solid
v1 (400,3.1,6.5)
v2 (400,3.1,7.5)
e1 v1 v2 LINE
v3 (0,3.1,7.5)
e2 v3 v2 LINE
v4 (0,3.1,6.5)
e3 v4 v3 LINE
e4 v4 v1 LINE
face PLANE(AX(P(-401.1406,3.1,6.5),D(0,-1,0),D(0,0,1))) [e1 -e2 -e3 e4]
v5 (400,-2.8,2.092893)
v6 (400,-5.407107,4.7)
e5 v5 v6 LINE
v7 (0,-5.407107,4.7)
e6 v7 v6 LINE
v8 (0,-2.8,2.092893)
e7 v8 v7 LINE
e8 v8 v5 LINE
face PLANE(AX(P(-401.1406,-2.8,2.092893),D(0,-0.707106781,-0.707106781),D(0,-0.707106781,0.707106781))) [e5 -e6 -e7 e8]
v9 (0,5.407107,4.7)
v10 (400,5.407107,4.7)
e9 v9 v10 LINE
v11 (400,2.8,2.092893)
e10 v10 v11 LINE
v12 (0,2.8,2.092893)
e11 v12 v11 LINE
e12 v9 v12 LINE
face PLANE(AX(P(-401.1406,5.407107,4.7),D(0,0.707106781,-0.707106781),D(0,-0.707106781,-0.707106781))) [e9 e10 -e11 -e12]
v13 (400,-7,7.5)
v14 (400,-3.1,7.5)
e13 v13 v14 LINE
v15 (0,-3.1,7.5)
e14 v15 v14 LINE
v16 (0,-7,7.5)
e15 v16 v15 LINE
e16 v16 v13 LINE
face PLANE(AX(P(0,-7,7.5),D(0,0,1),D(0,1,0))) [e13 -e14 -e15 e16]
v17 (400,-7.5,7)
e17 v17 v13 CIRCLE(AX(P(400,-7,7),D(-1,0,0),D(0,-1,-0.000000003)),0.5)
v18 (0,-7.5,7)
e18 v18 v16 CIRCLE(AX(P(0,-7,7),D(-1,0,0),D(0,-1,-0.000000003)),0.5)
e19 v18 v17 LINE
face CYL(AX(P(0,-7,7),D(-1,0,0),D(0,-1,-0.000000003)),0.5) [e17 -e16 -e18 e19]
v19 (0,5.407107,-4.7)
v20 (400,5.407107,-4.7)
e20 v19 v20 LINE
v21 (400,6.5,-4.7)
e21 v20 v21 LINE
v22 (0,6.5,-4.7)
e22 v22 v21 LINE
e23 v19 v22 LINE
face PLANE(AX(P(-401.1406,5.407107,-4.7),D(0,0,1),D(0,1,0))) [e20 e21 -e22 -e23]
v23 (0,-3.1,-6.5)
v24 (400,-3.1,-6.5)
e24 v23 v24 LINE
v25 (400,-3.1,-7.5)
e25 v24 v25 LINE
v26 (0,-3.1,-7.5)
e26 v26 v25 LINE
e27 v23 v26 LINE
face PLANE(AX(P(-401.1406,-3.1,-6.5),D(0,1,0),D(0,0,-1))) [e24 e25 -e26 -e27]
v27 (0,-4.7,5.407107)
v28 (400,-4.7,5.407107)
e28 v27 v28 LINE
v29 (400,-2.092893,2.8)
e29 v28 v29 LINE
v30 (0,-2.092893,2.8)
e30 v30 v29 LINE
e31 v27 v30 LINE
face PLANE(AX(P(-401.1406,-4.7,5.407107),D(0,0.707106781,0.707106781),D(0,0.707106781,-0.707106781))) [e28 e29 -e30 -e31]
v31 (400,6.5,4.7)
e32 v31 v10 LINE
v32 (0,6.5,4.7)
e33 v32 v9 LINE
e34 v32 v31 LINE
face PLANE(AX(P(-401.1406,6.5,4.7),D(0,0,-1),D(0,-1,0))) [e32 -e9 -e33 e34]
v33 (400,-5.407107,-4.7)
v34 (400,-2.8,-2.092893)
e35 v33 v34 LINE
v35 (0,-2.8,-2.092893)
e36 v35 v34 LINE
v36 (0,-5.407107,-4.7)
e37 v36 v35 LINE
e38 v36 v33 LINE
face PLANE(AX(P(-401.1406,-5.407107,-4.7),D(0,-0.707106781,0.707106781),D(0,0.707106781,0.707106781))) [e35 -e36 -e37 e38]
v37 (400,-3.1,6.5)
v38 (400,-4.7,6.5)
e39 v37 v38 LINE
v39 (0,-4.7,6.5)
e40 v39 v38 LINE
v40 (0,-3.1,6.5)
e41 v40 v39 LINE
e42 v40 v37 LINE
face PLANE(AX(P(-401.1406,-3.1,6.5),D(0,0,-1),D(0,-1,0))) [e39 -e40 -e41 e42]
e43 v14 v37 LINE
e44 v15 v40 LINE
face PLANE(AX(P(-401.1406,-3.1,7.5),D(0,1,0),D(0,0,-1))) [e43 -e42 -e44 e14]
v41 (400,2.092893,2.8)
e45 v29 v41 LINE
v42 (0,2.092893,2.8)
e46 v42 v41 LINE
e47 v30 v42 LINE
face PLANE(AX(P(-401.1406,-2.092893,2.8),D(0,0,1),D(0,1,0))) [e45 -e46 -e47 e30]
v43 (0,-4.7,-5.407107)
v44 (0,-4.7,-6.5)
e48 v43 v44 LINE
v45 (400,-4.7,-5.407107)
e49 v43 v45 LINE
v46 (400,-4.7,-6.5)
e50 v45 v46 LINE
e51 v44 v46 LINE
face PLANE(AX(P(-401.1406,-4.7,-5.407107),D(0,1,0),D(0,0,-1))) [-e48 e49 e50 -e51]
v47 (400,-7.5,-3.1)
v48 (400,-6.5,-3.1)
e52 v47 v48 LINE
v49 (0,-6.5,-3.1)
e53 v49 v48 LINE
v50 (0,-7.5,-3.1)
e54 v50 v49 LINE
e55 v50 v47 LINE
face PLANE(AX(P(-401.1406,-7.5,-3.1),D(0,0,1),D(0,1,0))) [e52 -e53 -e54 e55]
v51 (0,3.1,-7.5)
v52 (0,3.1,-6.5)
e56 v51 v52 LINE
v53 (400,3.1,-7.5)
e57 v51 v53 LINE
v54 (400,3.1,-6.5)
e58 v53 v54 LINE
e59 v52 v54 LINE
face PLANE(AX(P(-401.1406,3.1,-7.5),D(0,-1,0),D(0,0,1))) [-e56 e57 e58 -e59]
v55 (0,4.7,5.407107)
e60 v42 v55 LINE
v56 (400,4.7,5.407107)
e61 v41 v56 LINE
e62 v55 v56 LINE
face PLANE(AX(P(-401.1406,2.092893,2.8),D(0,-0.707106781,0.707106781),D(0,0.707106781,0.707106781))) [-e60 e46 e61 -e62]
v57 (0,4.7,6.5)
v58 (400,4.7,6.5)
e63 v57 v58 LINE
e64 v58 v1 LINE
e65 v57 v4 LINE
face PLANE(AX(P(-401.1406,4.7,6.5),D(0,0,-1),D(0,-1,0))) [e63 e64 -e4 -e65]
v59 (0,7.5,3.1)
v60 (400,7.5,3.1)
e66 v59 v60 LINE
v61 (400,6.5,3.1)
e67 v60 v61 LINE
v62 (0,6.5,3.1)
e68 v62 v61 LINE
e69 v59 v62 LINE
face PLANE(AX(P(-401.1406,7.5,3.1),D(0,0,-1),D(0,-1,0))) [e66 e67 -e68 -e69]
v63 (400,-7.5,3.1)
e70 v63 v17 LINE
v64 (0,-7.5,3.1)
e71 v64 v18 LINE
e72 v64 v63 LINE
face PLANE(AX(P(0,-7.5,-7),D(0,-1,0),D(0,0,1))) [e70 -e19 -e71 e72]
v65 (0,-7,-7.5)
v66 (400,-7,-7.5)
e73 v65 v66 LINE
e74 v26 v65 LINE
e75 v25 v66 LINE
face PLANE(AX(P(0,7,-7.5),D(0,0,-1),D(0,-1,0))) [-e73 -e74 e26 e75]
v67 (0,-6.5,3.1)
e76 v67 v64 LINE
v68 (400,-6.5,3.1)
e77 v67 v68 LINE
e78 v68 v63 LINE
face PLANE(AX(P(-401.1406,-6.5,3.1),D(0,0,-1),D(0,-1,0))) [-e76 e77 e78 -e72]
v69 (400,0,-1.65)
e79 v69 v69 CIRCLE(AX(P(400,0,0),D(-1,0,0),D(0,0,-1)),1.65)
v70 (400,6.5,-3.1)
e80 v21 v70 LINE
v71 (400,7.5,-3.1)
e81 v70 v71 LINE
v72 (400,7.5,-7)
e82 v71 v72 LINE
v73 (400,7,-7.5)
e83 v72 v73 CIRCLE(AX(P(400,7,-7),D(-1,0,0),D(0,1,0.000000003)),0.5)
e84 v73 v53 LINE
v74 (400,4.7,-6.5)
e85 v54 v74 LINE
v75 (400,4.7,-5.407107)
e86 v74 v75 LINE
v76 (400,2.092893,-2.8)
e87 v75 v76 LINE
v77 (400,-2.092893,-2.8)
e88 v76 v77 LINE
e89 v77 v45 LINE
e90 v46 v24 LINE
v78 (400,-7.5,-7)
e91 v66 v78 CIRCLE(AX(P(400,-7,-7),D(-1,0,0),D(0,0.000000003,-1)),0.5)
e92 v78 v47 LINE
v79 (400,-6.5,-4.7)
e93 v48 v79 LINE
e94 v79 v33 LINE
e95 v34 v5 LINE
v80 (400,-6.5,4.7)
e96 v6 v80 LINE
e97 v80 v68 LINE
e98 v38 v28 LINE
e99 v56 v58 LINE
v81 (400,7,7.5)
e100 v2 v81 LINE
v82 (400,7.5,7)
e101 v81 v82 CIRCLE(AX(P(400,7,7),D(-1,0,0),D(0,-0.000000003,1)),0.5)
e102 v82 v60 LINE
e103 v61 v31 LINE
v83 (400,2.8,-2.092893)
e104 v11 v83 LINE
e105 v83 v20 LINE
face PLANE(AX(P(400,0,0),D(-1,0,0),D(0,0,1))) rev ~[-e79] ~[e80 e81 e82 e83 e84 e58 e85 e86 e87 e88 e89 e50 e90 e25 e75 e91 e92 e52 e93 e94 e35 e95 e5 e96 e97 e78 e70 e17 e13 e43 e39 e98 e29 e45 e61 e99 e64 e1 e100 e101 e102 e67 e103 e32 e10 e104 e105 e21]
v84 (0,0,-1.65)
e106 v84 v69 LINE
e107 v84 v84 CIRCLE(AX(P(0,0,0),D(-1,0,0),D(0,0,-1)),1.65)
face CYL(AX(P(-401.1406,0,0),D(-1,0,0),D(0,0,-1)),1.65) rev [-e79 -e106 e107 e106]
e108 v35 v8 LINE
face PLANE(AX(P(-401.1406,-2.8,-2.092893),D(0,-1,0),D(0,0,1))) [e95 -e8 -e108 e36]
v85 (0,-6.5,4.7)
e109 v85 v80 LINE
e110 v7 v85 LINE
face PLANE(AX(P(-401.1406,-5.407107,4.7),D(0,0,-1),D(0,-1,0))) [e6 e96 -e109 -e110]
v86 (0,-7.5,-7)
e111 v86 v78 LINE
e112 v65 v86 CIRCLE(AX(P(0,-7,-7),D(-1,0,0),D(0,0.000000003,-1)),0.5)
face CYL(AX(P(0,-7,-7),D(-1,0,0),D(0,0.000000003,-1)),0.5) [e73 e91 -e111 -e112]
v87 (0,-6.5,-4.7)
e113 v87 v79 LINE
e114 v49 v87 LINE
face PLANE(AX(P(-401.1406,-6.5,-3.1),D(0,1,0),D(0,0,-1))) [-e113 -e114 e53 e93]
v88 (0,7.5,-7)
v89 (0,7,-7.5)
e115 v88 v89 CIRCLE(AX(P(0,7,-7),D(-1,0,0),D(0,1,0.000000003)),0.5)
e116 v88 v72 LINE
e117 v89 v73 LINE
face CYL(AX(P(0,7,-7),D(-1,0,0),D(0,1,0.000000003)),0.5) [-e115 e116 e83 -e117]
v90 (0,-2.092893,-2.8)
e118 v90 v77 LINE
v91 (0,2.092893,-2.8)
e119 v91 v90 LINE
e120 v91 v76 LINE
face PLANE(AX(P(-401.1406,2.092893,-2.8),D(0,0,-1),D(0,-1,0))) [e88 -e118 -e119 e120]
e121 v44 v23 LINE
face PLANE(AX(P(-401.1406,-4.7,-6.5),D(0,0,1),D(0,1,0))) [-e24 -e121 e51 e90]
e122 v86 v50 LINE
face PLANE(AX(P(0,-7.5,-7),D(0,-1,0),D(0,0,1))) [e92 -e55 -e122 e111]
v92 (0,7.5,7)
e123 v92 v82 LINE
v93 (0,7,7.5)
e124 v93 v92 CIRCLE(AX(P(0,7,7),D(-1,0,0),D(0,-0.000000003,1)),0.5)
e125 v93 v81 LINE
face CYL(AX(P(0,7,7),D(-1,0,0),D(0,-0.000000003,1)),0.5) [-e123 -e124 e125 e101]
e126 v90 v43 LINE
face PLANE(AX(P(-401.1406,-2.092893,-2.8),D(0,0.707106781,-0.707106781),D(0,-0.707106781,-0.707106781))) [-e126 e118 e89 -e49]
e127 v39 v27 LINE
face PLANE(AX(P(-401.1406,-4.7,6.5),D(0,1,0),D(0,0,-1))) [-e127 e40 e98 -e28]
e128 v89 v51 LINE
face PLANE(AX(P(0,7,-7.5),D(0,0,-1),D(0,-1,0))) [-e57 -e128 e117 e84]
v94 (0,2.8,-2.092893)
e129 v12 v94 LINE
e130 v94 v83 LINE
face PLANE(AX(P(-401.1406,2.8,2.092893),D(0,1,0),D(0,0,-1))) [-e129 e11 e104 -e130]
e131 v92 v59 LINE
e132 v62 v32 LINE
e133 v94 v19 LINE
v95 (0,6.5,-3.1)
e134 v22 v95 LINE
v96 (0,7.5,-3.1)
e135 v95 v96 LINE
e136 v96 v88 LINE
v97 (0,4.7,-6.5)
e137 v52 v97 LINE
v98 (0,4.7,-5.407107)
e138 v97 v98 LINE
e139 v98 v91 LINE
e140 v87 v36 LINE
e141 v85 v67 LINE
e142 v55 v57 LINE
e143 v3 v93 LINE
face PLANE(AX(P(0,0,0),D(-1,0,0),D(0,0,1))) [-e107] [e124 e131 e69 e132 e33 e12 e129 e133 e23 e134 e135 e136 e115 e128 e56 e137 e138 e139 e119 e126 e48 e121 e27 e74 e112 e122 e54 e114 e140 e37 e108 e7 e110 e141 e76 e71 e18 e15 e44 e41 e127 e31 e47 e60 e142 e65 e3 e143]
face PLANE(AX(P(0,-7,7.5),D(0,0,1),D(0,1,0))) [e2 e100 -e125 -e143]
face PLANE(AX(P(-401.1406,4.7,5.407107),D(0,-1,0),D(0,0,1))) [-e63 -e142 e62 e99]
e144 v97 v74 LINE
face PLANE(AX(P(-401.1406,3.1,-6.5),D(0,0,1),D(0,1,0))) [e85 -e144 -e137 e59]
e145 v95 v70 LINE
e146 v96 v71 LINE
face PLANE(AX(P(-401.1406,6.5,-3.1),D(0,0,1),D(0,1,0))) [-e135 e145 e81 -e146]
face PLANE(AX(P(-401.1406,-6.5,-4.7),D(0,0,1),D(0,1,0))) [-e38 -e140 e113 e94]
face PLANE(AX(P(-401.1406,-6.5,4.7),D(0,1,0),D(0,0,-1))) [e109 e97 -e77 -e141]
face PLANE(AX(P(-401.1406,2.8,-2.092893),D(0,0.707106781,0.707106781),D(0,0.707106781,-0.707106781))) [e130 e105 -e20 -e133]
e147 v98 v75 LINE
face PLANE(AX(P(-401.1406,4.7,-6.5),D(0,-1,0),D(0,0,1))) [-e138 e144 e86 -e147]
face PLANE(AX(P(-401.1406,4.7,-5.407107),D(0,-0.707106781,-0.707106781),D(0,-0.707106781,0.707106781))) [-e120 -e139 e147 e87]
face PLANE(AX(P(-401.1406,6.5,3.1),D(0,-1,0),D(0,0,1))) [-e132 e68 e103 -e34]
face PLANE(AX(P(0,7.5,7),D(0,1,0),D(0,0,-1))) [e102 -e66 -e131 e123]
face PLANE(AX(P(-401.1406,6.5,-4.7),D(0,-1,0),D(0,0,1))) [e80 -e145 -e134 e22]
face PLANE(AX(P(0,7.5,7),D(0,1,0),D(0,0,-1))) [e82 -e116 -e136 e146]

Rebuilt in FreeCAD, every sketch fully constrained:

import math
import FreeCAD as App
import Part
import Sketcher
Q = App.Units.Quantity

doc = App.newDocument("Part")
params = doc.addObject("Spreadsheet::Sheet", "Params")
for row, (alias, value) in enumerate([
    ("sketch1_radius", "0.5 mm"),
    ("sketch1_width", "14 mm"),
    ("pad1_length", "400 mm"),
    ("sketch2_diameter", "3.3 mm"),
    ("sketch2_width", "1 mm"),
    ("sketch2_width2", "6.2 mm"),
    ("sketch2_width3", "1.6 mm"),
], start=1):
    params.set(f"A{row}", alias)
    params.set(f"B{row}", "=" + value)
    params.setAlias(f"B{row}", alias)

body = doc.addObject("PartDesign::Body", "Body")

sketch1 = body.newObject("Sketcher::SketchObject", "Sketch")
sketch1.AttachmentSupport = (doc.getObject("YZ_Plane"), [""])
sketch1.MapMode = "FlatFace"
sketch1.addGeometry([
    Part.LineSegment(App.Vector(7.5, -7, 0), App.Vector(7.5, 7, 0)),
    Part.ArcOfCircle(Part.Circle(App.Vector(7, 7, 0), App.Vector(0, 0, 1), 0.5), math.radians(0), math.radians(90)),
    Part.LineSegment(App.Vector(7, 7.5, 0), App.Vector(-7, 7.5, 0)),
    Part.ArcOfCircle(Part.Circle(App.Vector(-7, 7, 0), App.Vector(0, 0, 1), 0.5), math.radians(90), math.radians(180)),
    Part.LineSegment(App.Vector(-7.5, 7, 0), App.Vector(-7.5, -7, 0)),
    Part.ArcOfCircle(Part.Circle(App.Vector(-7, -7, 0), App.Vector(0, 0, 1), 0.5), math.radians(180), math.radians(270)),
    Part.LineSegment(App.Vector(-7, -7.5, 0), App.Vector(7, -7.5, 0)),
    Part.ArcOfCircle(Part.Circle(App.Vector(7, -7, 0), App.Vector(0, 0, 1), 0.5), math.radians(-90), math.radians(0)),
], False)
sketch1.addConstraint([
    Sketcher.Constraint("Tangent", 0, 2, 1, 1),
    Sketcher.Constraint("Tangent", 1, 2, 2, 1),
    Sketcher.Constraint("Tangent", 2, 2, 3, 1),
    Sketcher.Constraint("Tangent", 3, 2, 4, 1),
    Sketcher.Constraint("Tangent", 4, 2, 5, 1),
    Sketcher.Constraint("Tangent", 5, 2, 6, 1),
    Sketcher.Constraint("Tangent", 6, 2, 7, 1),
    Sketcher.Constraint("Tangent", 7, 2, 0, 1),
    Sketcher.Constraint("Vertical", 0),
    Sketcher.Constraint("Horizontal", 2),
    Sketcher.Constraint("Vertical", 4),
    Sketcher.Constraint("Horizontal", 6),
    Sketcher.Constraint("Equal", 1, 3),
    Sketcher.Constraint("Equal", 3, 5),
    Sketcher.Constraint("Equal", 5, 7),
    Sketcher.Constraint("Symmetric", 1, 3, 5, 3, -1, 1),
    Sketcher.Constraint("Equal", 6, 0),
    Sketcher.Constraint("Radius", 1, Q("0.5 mm")),
    Sketcher.Constraint("DistanceX", 2, 2, 2, 1, Q("14 mm")),
])
sketch1.setExpression("Constraints[17]", "Params.sketch1_radius")
sketch1.setExpression("Constraints[18]", "Params.sketch1_width")
pad1 = body.newObject("PartDesign::Pad", "Pad")
pad1.Profile = sketch1
pad1.setExpression("Length", "Params.pad1_length")

sketch2 = body.newObject("Sketcher::SketchObject", "Sketch001")
sketch2.AttachmentSupport = (doc.getObject("YZ_Plane"), [""])
sketch2.MapMode = "FlatFace"
sketch2.addGeometry([
    Part.LineSegment(App.Vector(-6.5, 3.1, 0), App.Vector(-7.5, 3.1, 0)),
    Part.LineSegment(App.Vector(-7.5, 3.1, 0), App.Vector(-7.5, -3.1, 0)),
    Part.LineSegment(App.Vector(-7.5, -3.1, 0), App.Vector(-6.5, -3.1, 0)),
    Part.LineSegment(App.Vector(-6.5, -3.1, 0), App.Vector(-6.5, -4.7, 0)),
    Part.LineSegment(App.Vector(-6.5, -4.7, 0), App.Vector(-5.4, -4.7, 0)),
    Part.LineSegment(App.Vector(-5.4, -4.7, 0), App.Vector(-2.8, -2.1, 0)),
    Part.LineSegment(App.Vector(-2.8, -2.1, 0), App.Vector(-2.8, 2.1, 0)),
    Part.LineSegment(App.Vector(-2.8, 2.1, 0), App.Vector(-5.4, 4.7, 0)),
    Part.LineSegment(App.Vector(-5.4, 4.7, 0), App.Vector(-6.5, 4.7, 0)),
    Part.LineSegment(App.Vector(-6.5, 4.7, 0), App.Vector(-6.5, 3.1, 0)),
    Part.LineSegment(App.Vector(3.1, 6.5, 0), App.Vector(3.1, 7.5, 0)),
    Part.LineSegment(App.Vector(3.1, 7.5, 0), App.Vector(-3.1, 7.5, 0)),
    Part.LineSegment(App.Vector(-3.1, 7.5, 0), App.Vector(-3.1, 6.5, 0)),
    Part.LineSegment(App.Vector(-3.1, 6.5, 0), App.Vector(-4.7, 6.5, 0)),
    Part.LineSegment(App.Vector(-4.7, 6.5, 0), App.Vector(-4.7, 5.4, 0)),
    Part.LineSegment(App.Vector(-4.7, 5.4, 0), App.Vector(-2.1, 2.8, 0)),
    Part.LineSegment(App.Vector(-2.1, 2.8, 0), App.Vector(2.1, 2.8, 0)),
    Part.LineSegment(App.Vector(2.1, 2.8, 0), App.Vector(4.7, 5.4, 0)),
    Part.LineSegment(App.Vector(4.7, 5.4, 0), App.Vector(4.7, 6.5, 0)),
    Part.LineSegment(App.Vector(4.7, 6.5, 0), App.Vector(3.1, 6.5, 0)),
    Part.LineSegment(App.Vector(6.5, -4.7, 0), App.Vector(6.5, -3.1, 0)),
    Part.LineSegment(App.Vector(6.5, -3.1, 0), App.Vector(7.5, -3.1, 0)),
    Part.LineSegment(App.Vector(7.5, -3.1, 0), App.Vector(7.5, 3.1, 0)),
    Part.LineSegment(App.Vector(7.5, 3.1, 0), App.Vector(6.5, 3.1, 0)),
    Part.LineSegment(App.Vector(6.5, 3.1, 0), App.Vector(6.5, 4.7, 0)),
    Part.LineSegment(App.Vector(6.5, 4.7, 0), App.Vector(5.4, 4.7, 0)),
    Part.LineSegment(App.Vector(5.4, 4.7, 0), App.Vector(2.8, 2.1, 0)),
    Part.LineSegment(App.Vector(2.8, 2.1, 0), App.Vector(2.8, -2.1, 0)),
    Part.LineSegment(App.Vector(2.8, -2.1, 0), App.Vector(5.4, -4.7, 0)),
    Part.LineSegment(App.Vector(5.4, -4.7, 0), App.Vector(6.5, -4.7, 0)),
    Part.LineSegment(App.Vector(-3.1, -7.5, 0), App.Vector(3.1, -7.5, 0)),
    Part.LineSegment(App.Vector(3.1, -7.5, 0), App.Vector(3.1, -6.5, 0)),
    Part.LineSegment(App.Vector(3.1, -6.5, 0), App.Vector(4.7, -6.5, 0)),
    Part.LineSegment(App.Vector(4.7, -6.5, 0), App.Vector(4.7, -5.4, 0)),
    Part.LineSegment(App.Vector(4.7, -5.4, 0), App.Vector(2.1, -2.8, 0)),
    Part.LineSegment(App.Vector(2.1, -2.8, 0), App.Vector(-2.1, -2.8, 0)),
    Part.LineSegment(App.Vector(-2.1, -2.8, 0), App.Vector(-4.7, -5.4, 0)),
    Part.LineSegment(App.Vector(-4.7, -5.4, 0), App.Vector(-4.7, -6.5, 0)),
    Part.LineSegment(App.Vector(-4.7, -6.5, 0), App.Vector(-3.1, -6.5, 0)),
    Part.LineSegment(App.Vector(-3.1, -6.5, 0), App.Vector(-3.1, -7.5, 0)),
    Part.Circle(App.Vector(0, 0, 0), App.Vector(0, 0, 1), 1.6),
], False)
sketch2.addConstraint([
    Sketcher.Constraint("Coincident", 0, 2, 1, 1),
    Sketcher.Constraint("Coincident", 1, 2, 2, 1),
    Sketcher.Constraint("Coincident", 2, 2, 3, 1),
    Sketcher.Constraint("Coincident", 3, 2, 4, 1),
    Sketcher.Constraint("Coincident", 4, 2, 5, 1),
    Sketcher.Constraint("Coincident", 5, 2, 6, 1),
    Sketcher.Constraint("Coincident", 6, 2, 7, 1),
    Sketcher.Constraint("Coincident", 7, 2, 8, 1),
    Sketcher.Constraint("Coincident", 8, 2, 9, 1),
    Sketcher.Constraint("Coincident", 9, 2, 0, 1),
    Sketcher.Constraint("Coincident", 10, 2, 11, 1),
    Sketcher.Constraint("Coincident", 11, 2, 12, 1),
    Sketcher.Constraint("Coincident", 12, 2, 13, 1),
    Sketcher.Constraint("Coincident", 13, 2, 14, 1),
    Sketcher.Constraint("Coincident", 14, 2, 15, 1),
    Sketcher.Constraint("Coincident", 15, 2, 16, 1),
    Sketcher.Constraint("Coincident", 16, 2, 17, 1),
    Sketcher.Constraint("Coincident", 17, 2, 18, 1),
    Sketcher.Constraint("Coincident", 18, 2, 19, 1),
    Sketcher.Constraint("Coincident", 19, 2, 10, 1),
    Sketcher.Constraint("Coincident", 20, 2, 21, 1),
    Sketcher.Constraint("Coincident", 21, 2, 22, 1),
    Sketcher.Constraint("Coincident", 22, 2, 23, 1),
    Sketcher.Constraint("Coincident", 23, 2, 24, 1),
    Sketcher.Constraint("Coincident", 24, 2, 25, 1),
    Sketcher.Constraint("Coincident", 25, 2, 26, 1),
    Sketcher.Constraint("Coincident", 26, 2, 27, 1),
    Sketcher.Constraint("Coincident", 27, 2, 28, 1),
    Sketcher.Constraint("Coincident", 28, 2, 29, 1),
    Sketcher.Constraint("Coincident", 29, 2, 20, 1),
    Sketcher.Constraint("Coincident", 30, 2, 31, 1),
    Sketcher.Constraint("Coincident", 31, 2, 32, 1),
    Sketcher.Constraint("Coincident", 32, 2, 33, 1),
    Sketcher.Constraint("Coincident", 33, 2, 34, 1),
    Sketcher.Constraint("Coincident", 34, 2, 35, 1),
    Sketcher.Constraint("Coincident", 35, 2, 36, 1),
    Sketcher.Constraint("Coincident", 36, 2, 37, 1),
    Sketcher.Constraint("Coincident", 37, 2, 38, 1),
    Sketcher.Constraint("Coincident", 38, 2, 39, 1),
    Sketcher.Constraint("Coincident", 39, 2, 30, 1),
    Sketcher.Constraint("Horizontal", 0),
    Sketcher.Constraint("Vertical", 1),
    Sketcher.Constraint("Horizontal", 2),
    Sketcher.Constraint("Vertical", 3),
    Sketcher.Constraint("Horizontal", 4),
    Sketcher.Constraint("Vertical", 6),
    Sketcher.Constraint("Horizontal", 8),
    Sketcher.Constraint("Vertical", 9),
    Sketcher.Constraint("Vertical", 10),
    Sketcher.Constraint("Horizontal", 11),
    Sketcher.Constraint("Vertical", 12),
    Sketcher.Constraint("Horizontal", 13),
    Sketcher.Constraint("Vertical", 14),
    Sketcher.Constraint("Horizontal", 16),
    Sketcher.Constraint("Vertical", 18),
    Sketcher.Constraint("Horizontal", 19),
    Sketcher.Constraint("Vertical", 20),
    Sketcher.Constraint("Horizontal", 21),
    Sketcher.Constraint("Vertical", 22),
    Sketcher.Constraint("Horizontal", 23),
    Sketcher.Constraint("Vertical", 24),
    Sketcher.Constraint("Horizontal", 25),
    Sketcher.Constraint("Vertical", 27),
    Sketcher.Constraint("Horizontal", 29),
    Sketcher.Constraint("Horizontal", 30),
    Sketcher.Constraint("Vertical", 31),
    Sketcher.Constraint("Horizontal", 32),
    Sketcher.Constraint("Vertical", 33),
    Sketcher.Constraint("Horizontal", 35),
    Sketcher.Constraint("Vertical", 37),
    Sketcher.Constraint("Horizontal", 38),
    Sketcher.Constraint("Vertical", 39),
    Sketcher.Constraint("Coincident", 40, 3, -1, 1),
    Sketcher.Constraint("Symmetric", 9, 2, 20, 2, -1, 1),
    Sketcher.Constraint("Symmetric", 1, 2, 22, 2, -1, 1),
    Sketcher.Constraint("Symmetric", 3, 2, 24, 2, -1, 1),
    Sketcher.Constraint("Symmetric", 5, 2, 26, 2, -1, 1),
    Sketcher.Constraint("Symmetric", 7, 2, 28, 2, -1, 1),
    Sketcher.Constraint("Symmetric", 11, 2, 30, 2, -1, 1),
    Sketcher.Constraint("Symmetric", 13, 2, 32, 2, -1, 1),
    Sketcher.Constraint("Symmetric", 15, 2, 34, 2, -1, 1),
    Sketcher.Constraint("Symmetric", 17, 2, 36, 2, -1, 1),
    Sketcher.Constraint("Symmetric", 19, 2, 38, 2, -1, 1),
    Sketcher.Constraint("Symmetric", 14, 2, 17, 2, -2),
    Sketcher.Constraint("Symmetric", 12, 2, 19, 2, -2),
    Sketcher.Constraint("Symmetric", 2, 2, 20, 2, -2),
    Sketcher.Constraint("Symmetric", 7, 2, 25, 2, -2),
    Sketcher.Constraint("Perpendicular", 5, 7),
    Sketcher.Constraint("Parallel", 7, 15),
    Sketcher.Constraint("Perpendicular", 15, 17),
    Sketcher.Constraint("Parallel", 17, 26),
    Sketcher.Constraint("Perpendicular", 26, 28),
    Sketcher.Constraint("Parallel", 28, 34),
    Sketcher.Constraint("Perpendicular", 34, 36),
    Sketcher.Constraint("Horizontal", 6, 2, 26, 2),
    Sketcher.Constraint("Equal", 30, 1),
    Sketcher.Constraint("Equal", 38, 3),
    Sketcher.Constraint("Equal", 35, 6),
    Sketcher.Constraint("Equal", 23, 10),
    Sketcher.Constraint("Equal", 29, 14),
    Sketcher.Constraint("Diameter", 40, Q("3.3 mm")),
    Sketcher.Constraint("DistanceX", 0, 2, 0, 1, Q("1 mm")),
    Sketcher.Constraint("DistanceX", 11, 2, 11, 1, Q("6.2 mm")),
    Sketcher.Constraint("DistanceX", 13, 2, 13, 1, Q("1.6 mm")),
    Sketcher.Constraint("DistanceX", 0, 2, -1, 1, Q("7.5 mm")),
    Sketcher.Constraint("DistanceX", 5, 2, -1, 1, Q("2.8 mm")),
    Sketcher.Constraint("DistanceY", -1, 1, 10, 2, Q("7.5 mm")),
    Sketcher.Constraint("DistanceX", 4, 1, 4, 2, Q("1.092893 mm")),
])
sketch2.setExpression("Constraints[100]", "Params.sketch2_diameter")
sketch2.setExpression("Constraints[101]", "Params.sketch2_width")
sketch2.setExpression("Constraints[102]", "Params.sketch2_width2")
sketch2.setExpression("Constraints[103]", "Params.sketch2_width3")
pocket1 = body.newObject("PartDesign::Pocket", "Pocket")
pocket1.Profile = sketch2
pocket1.Type = "ThroughAll"
pocket1.Midplane = True

doc.recompute()
